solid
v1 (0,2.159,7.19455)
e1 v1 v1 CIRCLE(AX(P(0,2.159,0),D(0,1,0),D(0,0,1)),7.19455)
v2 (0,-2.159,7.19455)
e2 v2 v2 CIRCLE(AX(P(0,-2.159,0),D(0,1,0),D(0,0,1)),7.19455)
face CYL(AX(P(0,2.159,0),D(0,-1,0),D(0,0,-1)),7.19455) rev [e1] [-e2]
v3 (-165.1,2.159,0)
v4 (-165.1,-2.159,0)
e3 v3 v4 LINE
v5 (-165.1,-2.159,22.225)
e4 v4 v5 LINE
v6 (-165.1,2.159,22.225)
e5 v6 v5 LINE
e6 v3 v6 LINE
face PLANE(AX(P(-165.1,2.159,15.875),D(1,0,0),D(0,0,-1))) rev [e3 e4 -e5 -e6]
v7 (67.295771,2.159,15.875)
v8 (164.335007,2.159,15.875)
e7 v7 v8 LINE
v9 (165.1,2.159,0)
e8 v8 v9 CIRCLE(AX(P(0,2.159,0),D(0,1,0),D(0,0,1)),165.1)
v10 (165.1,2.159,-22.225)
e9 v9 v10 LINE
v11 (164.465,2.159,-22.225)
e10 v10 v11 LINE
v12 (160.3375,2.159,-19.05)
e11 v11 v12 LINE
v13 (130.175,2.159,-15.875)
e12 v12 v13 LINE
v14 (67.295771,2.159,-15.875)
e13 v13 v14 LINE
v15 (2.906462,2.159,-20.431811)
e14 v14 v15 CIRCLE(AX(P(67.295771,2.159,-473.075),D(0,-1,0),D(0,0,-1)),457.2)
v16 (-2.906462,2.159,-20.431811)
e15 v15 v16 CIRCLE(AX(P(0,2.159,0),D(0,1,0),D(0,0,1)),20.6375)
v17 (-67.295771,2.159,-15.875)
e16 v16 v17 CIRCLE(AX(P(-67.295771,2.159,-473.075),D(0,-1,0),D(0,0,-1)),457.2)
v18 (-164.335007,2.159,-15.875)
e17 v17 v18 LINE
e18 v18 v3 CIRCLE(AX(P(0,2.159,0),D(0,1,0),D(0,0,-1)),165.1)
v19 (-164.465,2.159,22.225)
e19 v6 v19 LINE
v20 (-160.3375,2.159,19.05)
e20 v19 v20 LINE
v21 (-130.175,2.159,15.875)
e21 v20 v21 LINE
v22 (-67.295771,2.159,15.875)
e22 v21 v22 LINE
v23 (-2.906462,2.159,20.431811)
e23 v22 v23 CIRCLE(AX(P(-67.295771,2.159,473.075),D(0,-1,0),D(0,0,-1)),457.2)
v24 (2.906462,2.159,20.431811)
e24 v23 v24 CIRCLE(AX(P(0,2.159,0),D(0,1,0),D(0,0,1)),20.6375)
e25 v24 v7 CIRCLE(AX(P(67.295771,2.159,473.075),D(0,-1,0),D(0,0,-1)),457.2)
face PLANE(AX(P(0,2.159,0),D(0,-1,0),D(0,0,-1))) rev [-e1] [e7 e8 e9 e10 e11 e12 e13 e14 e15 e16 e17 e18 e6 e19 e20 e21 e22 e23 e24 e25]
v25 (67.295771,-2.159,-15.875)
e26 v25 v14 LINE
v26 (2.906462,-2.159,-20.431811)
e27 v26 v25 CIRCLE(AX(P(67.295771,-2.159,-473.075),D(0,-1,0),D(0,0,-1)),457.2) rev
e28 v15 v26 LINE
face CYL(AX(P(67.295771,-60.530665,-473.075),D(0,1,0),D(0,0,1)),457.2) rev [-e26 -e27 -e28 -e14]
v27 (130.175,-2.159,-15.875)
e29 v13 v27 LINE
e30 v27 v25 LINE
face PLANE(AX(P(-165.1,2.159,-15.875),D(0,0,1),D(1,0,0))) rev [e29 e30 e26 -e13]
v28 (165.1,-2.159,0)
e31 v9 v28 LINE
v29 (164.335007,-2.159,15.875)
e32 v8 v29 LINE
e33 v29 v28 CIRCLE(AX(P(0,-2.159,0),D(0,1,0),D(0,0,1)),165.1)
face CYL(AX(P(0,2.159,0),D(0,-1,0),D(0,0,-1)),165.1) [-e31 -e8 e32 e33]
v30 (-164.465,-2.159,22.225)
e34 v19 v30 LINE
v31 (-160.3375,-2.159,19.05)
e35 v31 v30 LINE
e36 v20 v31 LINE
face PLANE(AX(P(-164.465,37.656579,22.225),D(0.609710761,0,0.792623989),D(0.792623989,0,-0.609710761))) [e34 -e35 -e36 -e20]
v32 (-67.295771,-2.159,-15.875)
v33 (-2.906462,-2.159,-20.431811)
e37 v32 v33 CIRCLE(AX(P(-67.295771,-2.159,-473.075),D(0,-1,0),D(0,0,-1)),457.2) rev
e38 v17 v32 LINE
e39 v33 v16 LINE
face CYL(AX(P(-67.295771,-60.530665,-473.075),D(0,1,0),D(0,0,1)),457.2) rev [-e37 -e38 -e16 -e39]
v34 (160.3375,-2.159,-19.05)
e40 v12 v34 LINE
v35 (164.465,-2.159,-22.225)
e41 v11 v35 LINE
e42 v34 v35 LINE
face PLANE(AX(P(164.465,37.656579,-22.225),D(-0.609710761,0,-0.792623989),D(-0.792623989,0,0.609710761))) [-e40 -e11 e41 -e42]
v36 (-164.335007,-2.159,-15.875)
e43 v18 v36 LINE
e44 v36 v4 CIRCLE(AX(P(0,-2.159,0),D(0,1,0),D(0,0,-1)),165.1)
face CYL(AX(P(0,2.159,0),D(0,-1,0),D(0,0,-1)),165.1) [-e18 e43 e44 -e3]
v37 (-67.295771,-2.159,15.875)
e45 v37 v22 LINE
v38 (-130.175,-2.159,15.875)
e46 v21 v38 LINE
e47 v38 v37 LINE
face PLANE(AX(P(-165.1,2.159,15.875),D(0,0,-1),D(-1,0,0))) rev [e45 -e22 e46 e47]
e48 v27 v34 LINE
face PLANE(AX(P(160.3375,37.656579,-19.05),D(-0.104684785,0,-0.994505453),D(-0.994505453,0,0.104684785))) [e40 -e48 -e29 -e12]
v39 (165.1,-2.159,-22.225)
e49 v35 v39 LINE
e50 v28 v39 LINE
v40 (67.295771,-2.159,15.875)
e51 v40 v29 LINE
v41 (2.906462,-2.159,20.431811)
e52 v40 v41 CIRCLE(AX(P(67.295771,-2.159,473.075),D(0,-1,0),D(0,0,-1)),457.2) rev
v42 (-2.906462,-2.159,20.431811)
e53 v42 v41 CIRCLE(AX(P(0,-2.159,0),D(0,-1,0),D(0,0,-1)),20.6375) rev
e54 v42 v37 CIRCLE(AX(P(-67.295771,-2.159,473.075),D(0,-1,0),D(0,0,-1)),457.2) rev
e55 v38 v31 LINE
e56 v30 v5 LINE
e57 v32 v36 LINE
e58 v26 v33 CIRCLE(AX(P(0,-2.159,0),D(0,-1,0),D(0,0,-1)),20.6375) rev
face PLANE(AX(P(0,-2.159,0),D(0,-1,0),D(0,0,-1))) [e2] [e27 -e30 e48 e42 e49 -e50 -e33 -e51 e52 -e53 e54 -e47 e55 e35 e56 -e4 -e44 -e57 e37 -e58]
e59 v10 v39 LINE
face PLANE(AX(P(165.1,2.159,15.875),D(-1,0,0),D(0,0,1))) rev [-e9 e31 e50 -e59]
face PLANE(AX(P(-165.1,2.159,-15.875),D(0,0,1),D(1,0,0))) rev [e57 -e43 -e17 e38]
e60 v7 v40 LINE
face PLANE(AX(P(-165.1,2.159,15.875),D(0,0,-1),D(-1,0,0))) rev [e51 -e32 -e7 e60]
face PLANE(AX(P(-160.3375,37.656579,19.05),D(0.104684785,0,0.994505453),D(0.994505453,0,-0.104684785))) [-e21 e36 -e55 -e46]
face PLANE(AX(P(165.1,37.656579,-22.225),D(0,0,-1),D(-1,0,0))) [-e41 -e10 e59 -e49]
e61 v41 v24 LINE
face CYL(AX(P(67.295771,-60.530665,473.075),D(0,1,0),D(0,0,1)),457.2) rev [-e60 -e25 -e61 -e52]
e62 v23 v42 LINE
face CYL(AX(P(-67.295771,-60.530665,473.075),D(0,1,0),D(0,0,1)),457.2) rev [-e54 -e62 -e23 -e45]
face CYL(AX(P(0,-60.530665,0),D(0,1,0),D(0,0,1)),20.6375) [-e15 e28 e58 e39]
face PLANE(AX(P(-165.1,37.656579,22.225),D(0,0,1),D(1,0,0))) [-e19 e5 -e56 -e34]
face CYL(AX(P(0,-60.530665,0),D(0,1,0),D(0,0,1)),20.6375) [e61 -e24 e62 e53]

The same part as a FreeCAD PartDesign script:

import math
import FreeCAD as App
import Part
import Sketcher

V = App.Vector
Q = App.Units.Quantity


def edges_at(feature, points):
    """Names of the edges that pass closest to the given points."""
    edges = feature.Shape.Edges
    near = lambda p: min(range(len(edges)), key=lambda i: edges[i].distToShape(Part.Vertex(*p))[0])
    return sorted({f"Edge{near(p) + 1}" for p in points})

doc = App.newDocument("Part")
body = doc.addObject("PartDesign::Body", "Body")

# Sketch on XZ plane
sketch1 = body.newObject("Sketcher::SketchObject", "Sketch")
sketch1.AttachmentSupport = (doc.getObject("XZ_Plane"), [""])
sketch1.MapMode = "FlatFace"
sketch1.addGeometry([
    Part.LineSegment(V(-165, -16, 0), V(-165, 16, 0)),  # 0
    Part.LineSegment(V(-165, 16, 0), V(165, 16, 0)),  # 1
    Part.LineSegment(V(165, 16, 0), V(165, -16, 0)),  # 2
    Part.LineSegment(V(165, -16, 0), V(-165, -16, 0)),  # 3
    Part.Circle(V(0, 0, 0), V(0, 0, 1), 7),  # 4
], False)
sketch1.addConstraint([
    Sketcher.Constraint("Coincident", 0, 2, 1, 1),
    Sketcher.Constraint("Coincident", 1, 2, 2, 1),
    Sketcher.Constraint("Coincident", 2, 2, 3, 1),
    Sketcher.Constraint("Coincident", 3, 2, 0, 1),
    Sketcher.Constraint("Vertical", 0),
    Sketcher.Constraint("Horizontal", 1),
    Sketcher.Constraint("Vertical", 2),
    Sketcher.Constraint("Horizontal", 3),
    Sketcher.Constraint("Coincident", 4, 3, -1, 1),
    Sketcher.Constraint("Symmetric", 0, 2, 2, 2, -1, 1),
    Sketcher.Constraint("DistanceX", 1, 1, 1, 2, Q("13 in")),
    Sketcher.Constraint("Diameter", 4, Q("0.5665 in")),
    Sketcher.Constraint("DistanceY", 0, 1, 0, 2, Q("1.25 in")),
])
pad1 = body.newObject("PartDesign::Pad", "Pad")
pad1.Profile = sketch1
pad1.Length = Q("0.17 in")
pad1.Midplane = True

# Sketch on XZ plane
sketch2 = body.newObject("Sketcher::SketchObject", "Sketch001")
sketch2.AttachmentSupport = (doc.getObject("XZ_Plane"), [""])
sketch2.MapMode = "FlatFace"
sketch2.AttachmentOffset = App.Placement(V(0, 0, -0.085 * 25.4), App.Rotation())
sketch2.addGeometry([
    Part.Circle(V(0, 0, 0), V(0, 0, 1), 21),
    Part.Circle(V(0, 0, 0), V(0, 0, 1), 7),
], False)
sketch2.addConstraint([
    Sketcher.Constraint("Coincident", 0, 3, -1, 1),
    Sketcher.Constraint("Coincident", 1, 3, -1, 1),
    Sketcher.Constraint("Diameter", 0, Q("1.625 in")),
    Sketcher.Constraint("Diameter", 1, Q("0.5665 in")),
])
pad2 = body.newObject("PartDesign::Pad", "Pad001")
pad2.Profile = sketch2
pad2.Length = Q("0.17 in")
doc.recompute()

fillet = body.newObject("PartDesign::Fillet", "Fillet")
fillet.Base = (pad2, edges_at(pad2, [
    (13.187, 0, 15.875),
    (-13.187, 0, 15.875),
    (13.187, 0, -15.875),
    (-13.187, 0, -15.875),
]))
fillet.Radius = Q("18 in")

# Sketch on XZ plane
sketch3 = body.newObject("Sketcher::SketchObject", "Sketch002")
sketch3.AttachmentSupport = (doc.getObject("XZ_Plane"), [""])
sketch3.MapMode = "FlatFace"
sketch3.AttachmentOffset = App.Placement(V(0, 0, 0.085 * 25.4), App.Rotation())
sketch3.addGeometry([
    Part.LineSegment(V(-165.1, 22.2, 0), V(-165.1, 15.9, 0)),  # 0
    Part.LineSegment(V(-165.1, 15.9, 0), V(-130.2, 15.9, 0)),  # 1
    Part.LineSegment(V(-130.2, 15.9, 0), V(-160.3, 19.1, 0)),  # 2
    Part.LineSegment(V(-160.3, 19.1, 0), V(-164.5, 22.2, 0)),  # 3
    Part.LineSegment(V(-164.5, 22.2, 0), V(-165.1, 22.2, 0)),  # 4
    Part.LineSegment(V(165.1, -22.2, 0), V(165.1, -15.9, 0)),  # 5
    Part.LineSegment(V(165.1, -15.9, 0), V(130.2, -15.9, 0)),  # 6
    Part.LineSegment(V(130.2, -15.9, 0), V(160.3, -19.1, 0)),  # 7
    Part.LineSegment(V(160.3, -19.1, 0), V(164.5, -22.2, 0)),  # 8
    Part.LineSegment(V(164.5, -22.2, 0), V(165.1, -22.2, 0)),  # 9
], False)
sketch3.addConstraint([
    Sketcher.Constraint("Coincident", 0, 2, 1, 1),
    Sketcher.Constraint("Coincident", 1, 2, 2, 1),
    Sketcher.Constraint("Coincident", 2, 2, 3, 1),
    Sketcher.Constraint("Coincident", 3, 2, 4, 1),
    Sketcher.Constraint("Coincident", 4, 2, 0, 1),
    Sketcher.Constraint("Coincident", 5, 2, 6, 1),
    Sketcher.Constraint("Coincident", 6, 2, 7, 1),
    Sketcher.Constraint("Coincident", 7, 2, 8, 1),
    Sketcher.Constraint("Coincident", 8, 2, 9, 1),
    Sketcher.Constraint("Coincident", 9, 2, 5, 1),
    Sketcher.Constraint("Vertical", 0),
    Sketcher.Constraint("Horizontal", 1),
    Sketcher.Constraint("Horizontal", 4),
    Sketcher.Constraint("Vertical", 5),
    Sketcher.Constraint("Horizontal", 6),
    Sketcher.Constraint("Horizontal", 9),
    Sketcher.Constraint("Symmetric", 0, 2, 5, 2, -1, 1),
    Sketcher.Constraint("Symmetric", 2, 2, 7, 2, -1, 1),
    Sketcher.Constraint("Symmetric", 3, 2, 8, 2, -1, 1),
    Sketcher.Constraint("Parallel", 2, 7),
    Sketcher.Constraint("DistanceX", 0, 2, 5, 2, Q("13 in")),
    Sketcher.Constraint("DistanceY", 0, 2, 0, 1, Q("0.25 in")),
    Sketcher.Constraint("DistanceY", 5, 2, 3, 2, Q("1.5 in")),
    Sketcher.Constraint("DistanceX", 3, 2, 6, 2, Q("11.6 in")),
    Sketcher.Constraint("DistanceY", 7, 2, 2, 2, Q("1.5 in")),
    Sketcher.Constraint("DistanceX", 1, 1, 1, 2, Q("1.375 in")),
    Sketcher.Constraint("DistanceX", 2, 2, -1, 1, Q("6.3125 in")),
])
pad3 = body.newObject("PartDesign::Pad", "Pad002")
pad3.Profile = sketch3
pad3.Length = Q("0.17 in")
pad3.Reversed = True

# Sketch on XZ plane
sketch4 = body.newObject("Sketcher::SketchObject", "Sketch003")
sketch4.AttachmentSupport = (doc.getObject("XZ_Plane"), [""])
sketch4.MapMode = "FlatFace"
sketch4.AttachmentOffset = App.Placement(V(0, 0, 0.085 * 25.4), App.Rotation())
sketch4.addGeometry([
    Part.LineSegment(V(165.1, 15.9, 0), V(164.3, 15.9, 0)),  # 0
    Part.ArcOfCircle(Part.Circle(V(0, 0, 0), V(0, 0, 1), 165.1), math.radians(0), math.radians(5.52)),  # 1
    Part.LineSegment(V(165.1, 0, 0), V(165.1, 15.9, 0)),  # 2
    Part.LineSegment(V(-165.1, -15.9, 0), V(-164.3, -15.9, 0)),  # 3
    Part.ArcOfCircle(Part.Circle(V(0, 0, 0), V(0, 0, 1), 165.1), math.radians(180), math.radians(185.52)),  # 4
    Part.LineSegment(V(-165.1, 0, 0), V(-165.1, -15.9, 0)),  # 5
], False)
sketch4.addConstraint([
    Sketcher.Constraint("Coincident", 0, 2, 1, 2),
    Sketcher.Constraint("Tangent", 1, 1, 2, 1),
    Sketcher.Constraint("Coincident", 2, 2, 0, 1),
    Sketcher.Constraint("Coincident", 3, 2, 4, 2),
    Sketcher.Constraint("Tangent", 4, 1, 5, 1),
    Sketcher.Constraint("Coincident", 5, 2, 3, 1),
    Sketcher.Constraint("Horizontal", 0),
    Sketcher.Constraint("Vertical", 2),
    Sketcher.Constraint("Horizontal", 3),
    Sketcher.Constraint("Vertical", 5),
    Sketcher.Constraint("Coincident", 1, 3, -1, 1),
    Sketcher.Constraint("Coincident", 4, 3, -1, 1),
    Sketcher.Constraint("Equal", 1, 4),
    Sketcher.Constraint("Equal", 0, 3),
    Sketcher.Constraint("Radius", 1, Q("6.5 in")),
    Sketcher.Constraint("DistanceY", 2, 1, 2, 2, Q("0.625 in")),
])
pocket1 = body.newObject("PartDesign::Pocket", "Pocket")
pocket1.Profile = sketch4
pocket1.Type = "ThroughAll"

doc.recompute()
